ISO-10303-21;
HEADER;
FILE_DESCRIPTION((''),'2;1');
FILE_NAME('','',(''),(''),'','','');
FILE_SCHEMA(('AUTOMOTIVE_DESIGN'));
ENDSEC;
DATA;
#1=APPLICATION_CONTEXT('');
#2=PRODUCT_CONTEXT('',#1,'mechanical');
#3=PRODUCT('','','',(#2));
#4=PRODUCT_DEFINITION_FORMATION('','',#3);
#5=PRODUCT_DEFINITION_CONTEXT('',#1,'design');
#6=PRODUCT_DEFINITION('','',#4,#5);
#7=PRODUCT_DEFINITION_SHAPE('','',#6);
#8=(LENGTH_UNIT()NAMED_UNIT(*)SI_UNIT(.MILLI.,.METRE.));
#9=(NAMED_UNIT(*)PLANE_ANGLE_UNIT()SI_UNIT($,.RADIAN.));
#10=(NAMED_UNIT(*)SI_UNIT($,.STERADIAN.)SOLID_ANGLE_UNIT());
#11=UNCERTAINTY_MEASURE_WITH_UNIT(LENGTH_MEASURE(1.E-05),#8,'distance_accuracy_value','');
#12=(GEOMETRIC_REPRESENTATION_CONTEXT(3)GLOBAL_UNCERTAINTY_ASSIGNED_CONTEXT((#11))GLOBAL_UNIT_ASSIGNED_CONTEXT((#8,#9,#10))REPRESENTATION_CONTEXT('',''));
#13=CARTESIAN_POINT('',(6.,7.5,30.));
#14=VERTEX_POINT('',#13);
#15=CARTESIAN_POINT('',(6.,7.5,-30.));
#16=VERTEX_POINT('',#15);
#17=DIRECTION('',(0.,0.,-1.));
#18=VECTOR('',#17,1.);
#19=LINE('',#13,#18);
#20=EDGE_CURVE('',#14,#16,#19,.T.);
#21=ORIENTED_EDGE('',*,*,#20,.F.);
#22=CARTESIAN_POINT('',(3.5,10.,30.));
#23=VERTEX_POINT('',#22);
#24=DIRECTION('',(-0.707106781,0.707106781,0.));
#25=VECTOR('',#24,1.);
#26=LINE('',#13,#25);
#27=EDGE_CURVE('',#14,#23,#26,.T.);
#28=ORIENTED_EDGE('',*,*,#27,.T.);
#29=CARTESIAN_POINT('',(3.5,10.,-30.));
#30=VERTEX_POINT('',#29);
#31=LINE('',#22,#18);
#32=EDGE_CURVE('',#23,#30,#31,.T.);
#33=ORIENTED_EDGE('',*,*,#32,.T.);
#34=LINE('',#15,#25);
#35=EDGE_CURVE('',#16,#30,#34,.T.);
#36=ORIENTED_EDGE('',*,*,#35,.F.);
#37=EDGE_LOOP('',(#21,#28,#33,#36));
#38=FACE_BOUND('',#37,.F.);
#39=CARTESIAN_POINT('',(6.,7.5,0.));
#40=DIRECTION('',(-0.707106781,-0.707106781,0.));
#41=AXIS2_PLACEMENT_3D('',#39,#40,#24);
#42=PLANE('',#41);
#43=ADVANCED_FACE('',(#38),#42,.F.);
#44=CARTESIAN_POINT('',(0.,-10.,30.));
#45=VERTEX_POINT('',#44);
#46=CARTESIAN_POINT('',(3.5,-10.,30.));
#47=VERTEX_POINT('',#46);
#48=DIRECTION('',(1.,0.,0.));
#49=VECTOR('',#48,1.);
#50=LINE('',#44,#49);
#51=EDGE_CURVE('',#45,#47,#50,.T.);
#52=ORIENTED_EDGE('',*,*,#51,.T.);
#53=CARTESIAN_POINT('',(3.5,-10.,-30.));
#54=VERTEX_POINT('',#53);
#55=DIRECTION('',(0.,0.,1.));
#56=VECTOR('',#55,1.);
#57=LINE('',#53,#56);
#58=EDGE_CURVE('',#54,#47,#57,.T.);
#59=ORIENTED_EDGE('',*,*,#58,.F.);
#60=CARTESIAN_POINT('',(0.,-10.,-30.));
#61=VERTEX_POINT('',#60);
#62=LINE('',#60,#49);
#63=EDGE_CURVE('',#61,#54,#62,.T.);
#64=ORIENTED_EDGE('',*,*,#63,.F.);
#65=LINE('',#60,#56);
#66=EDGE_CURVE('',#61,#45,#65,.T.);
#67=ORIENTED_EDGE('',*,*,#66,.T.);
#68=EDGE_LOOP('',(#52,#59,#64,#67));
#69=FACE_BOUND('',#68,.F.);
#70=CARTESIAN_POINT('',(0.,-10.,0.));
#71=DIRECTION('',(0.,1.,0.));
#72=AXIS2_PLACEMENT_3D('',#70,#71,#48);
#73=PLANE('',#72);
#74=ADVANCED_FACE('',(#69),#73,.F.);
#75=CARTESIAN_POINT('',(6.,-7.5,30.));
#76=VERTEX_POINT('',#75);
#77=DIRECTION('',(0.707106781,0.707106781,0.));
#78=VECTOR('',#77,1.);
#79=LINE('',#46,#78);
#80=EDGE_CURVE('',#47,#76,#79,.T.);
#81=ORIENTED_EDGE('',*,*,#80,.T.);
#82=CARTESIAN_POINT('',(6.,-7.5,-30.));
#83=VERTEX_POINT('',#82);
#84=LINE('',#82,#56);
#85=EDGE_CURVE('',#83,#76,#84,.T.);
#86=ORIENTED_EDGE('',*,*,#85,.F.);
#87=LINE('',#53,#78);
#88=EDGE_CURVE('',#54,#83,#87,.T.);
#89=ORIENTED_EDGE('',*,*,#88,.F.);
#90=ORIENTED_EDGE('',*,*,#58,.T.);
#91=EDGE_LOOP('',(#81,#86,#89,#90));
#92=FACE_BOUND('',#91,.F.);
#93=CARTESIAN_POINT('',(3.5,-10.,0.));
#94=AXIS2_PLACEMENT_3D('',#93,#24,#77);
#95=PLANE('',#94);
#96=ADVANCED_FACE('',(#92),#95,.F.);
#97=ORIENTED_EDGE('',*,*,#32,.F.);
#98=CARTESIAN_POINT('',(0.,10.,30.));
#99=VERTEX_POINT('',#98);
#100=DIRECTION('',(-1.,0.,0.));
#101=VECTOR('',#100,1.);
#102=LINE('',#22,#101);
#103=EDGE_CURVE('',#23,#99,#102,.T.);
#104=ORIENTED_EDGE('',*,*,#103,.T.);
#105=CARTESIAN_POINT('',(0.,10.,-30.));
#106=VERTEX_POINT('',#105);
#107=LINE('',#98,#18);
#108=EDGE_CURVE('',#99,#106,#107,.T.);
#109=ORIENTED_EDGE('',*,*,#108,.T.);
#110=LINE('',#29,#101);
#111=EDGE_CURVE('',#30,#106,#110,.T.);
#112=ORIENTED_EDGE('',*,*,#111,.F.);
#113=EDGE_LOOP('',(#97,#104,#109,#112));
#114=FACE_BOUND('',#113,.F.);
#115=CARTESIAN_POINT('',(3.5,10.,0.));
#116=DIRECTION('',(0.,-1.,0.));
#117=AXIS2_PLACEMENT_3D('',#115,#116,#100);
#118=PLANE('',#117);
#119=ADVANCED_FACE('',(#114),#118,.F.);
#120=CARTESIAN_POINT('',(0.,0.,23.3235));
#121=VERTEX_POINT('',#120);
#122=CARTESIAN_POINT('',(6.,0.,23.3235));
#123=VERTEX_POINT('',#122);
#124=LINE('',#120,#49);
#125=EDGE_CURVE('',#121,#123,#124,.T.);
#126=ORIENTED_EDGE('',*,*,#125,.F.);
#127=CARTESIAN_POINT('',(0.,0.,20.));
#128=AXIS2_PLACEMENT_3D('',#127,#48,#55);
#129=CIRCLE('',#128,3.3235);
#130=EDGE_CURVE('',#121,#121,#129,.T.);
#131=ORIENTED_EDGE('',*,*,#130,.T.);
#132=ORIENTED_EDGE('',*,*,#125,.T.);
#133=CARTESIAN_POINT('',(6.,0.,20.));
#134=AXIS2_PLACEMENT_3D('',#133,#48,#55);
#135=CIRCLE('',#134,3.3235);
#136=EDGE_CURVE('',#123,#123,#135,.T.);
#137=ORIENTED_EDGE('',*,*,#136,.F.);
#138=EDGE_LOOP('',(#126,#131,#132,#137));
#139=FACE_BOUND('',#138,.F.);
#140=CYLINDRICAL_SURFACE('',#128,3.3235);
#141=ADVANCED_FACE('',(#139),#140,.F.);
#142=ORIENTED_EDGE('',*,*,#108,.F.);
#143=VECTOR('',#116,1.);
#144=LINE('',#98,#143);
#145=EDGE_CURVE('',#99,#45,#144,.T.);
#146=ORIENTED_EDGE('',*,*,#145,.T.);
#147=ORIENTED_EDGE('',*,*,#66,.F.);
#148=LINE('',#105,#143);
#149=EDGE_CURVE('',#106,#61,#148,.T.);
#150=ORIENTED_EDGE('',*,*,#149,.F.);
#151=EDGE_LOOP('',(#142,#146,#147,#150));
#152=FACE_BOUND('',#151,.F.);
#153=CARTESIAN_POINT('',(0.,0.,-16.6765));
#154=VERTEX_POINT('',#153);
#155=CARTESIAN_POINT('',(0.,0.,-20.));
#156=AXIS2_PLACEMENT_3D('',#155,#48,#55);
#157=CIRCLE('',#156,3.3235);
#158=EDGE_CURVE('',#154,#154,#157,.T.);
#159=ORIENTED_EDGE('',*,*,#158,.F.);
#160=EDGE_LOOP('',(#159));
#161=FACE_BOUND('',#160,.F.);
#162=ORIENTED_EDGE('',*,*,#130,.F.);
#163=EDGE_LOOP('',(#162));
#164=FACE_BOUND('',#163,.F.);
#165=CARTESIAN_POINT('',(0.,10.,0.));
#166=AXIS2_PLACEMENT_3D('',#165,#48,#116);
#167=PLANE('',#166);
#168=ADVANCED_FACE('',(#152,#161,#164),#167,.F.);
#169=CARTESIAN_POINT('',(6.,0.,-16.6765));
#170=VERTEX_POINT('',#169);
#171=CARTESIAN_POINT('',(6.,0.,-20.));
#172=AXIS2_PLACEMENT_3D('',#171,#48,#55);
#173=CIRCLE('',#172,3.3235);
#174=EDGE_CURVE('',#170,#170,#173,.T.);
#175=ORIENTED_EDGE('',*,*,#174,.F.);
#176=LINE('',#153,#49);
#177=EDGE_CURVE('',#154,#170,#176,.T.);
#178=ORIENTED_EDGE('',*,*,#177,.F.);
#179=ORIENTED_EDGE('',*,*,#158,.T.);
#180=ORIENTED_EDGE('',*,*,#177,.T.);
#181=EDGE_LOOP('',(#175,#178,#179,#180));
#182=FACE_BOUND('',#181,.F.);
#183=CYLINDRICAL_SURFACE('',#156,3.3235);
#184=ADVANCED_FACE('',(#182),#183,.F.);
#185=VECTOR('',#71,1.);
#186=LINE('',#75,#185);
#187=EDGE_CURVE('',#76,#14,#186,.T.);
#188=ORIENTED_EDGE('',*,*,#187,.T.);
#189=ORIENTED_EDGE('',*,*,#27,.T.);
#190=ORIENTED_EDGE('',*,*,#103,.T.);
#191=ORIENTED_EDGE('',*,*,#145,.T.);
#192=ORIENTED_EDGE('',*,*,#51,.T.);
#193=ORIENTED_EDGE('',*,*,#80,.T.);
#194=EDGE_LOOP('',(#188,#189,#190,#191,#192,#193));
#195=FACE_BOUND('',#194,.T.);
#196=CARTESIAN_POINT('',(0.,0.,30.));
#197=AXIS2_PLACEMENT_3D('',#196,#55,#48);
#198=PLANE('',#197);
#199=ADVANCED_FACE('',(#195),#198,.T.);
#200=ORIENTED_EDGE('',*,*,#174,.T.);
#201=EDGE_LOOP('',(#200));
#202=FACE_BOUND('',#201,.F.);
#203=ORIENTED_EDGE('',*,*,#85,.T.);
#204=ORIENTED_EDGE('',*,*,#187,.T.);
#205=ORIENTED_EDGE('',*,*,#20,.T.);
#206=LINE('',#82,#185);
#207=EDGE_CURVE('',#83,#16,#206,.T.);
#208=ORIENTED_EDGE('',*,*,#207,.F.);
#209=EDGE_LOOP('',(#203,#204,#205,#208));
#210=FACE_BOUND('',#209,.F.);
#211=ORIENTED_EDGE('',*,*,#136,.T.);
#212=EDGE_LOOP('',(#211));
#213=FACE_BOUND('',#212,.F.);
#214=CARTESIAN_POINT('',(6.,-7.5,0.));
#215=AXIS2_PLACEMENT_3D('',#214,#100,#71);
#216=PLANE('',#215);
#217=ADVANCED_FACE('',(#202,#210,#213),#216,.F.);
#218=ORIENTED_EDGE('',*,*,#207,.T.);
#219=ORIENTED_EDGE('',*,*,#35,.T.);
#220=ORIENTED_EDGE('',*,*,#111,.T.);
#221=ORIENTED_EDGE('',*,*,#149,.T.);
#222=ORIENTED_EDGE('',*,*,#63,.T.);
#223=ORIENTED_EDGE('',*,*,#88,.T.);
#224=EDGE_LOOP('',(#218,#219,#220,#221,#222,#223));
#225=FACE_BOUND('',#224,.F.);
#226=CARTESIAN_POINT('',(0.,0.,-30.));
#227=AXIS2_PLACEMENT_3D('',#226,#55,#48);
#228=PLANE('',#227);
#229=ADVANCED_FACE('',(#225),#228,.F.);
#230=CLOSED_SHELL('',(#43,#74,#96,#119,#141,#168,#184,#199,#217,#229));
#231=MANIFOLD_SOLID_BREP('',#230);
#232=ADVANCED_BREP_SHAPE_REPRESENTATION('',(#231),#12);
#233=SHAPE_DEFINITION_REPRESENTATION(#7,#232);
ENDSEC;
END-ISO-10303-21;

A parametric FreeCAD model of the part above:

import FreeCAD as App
import Part
import Sketcher

V = App.Vector


def add_polygon(sketch, points):
    """Adds a closed chain of lines whose ends are joined by coincident constraints."""
    first, n = sketch.GeometryCount, len(points)
    for a, b in zip(points, points[1:] + points[:1]):
        sketch.addGeometry(Part.LineSegment(App.Vector(*a, 0), App.Vector(*b, 0)), False)
    for i in range(n):
        sketch.addConstraint(Sketcher.Constraint("Coincident", first + i, 2, first + (i + 1) % n, 1))

doc = App.newDocument("Part")
body = doc.addObject("PartDesign::Body", "Body")

sketch1 = doc.addObject("Sketcher::SketchObject", "Sketch")
body.addObject(sketch1)
sketch1.AttachmentSupport = (doc.XY_Plane, [""])
sketch1.MapMode = "FlatFace"
add_polygon(sketch1, [(0, 10), (0, -10), (3.5, -10), (6, -7.5), (6, 7.5), (3.5, 10)])
sketch1.addConstraint([
    Sketcher.Constraint("Vertical", 0),
    Sketcher.Constraint("Horizontal", 1),
    Sketcher.Constraint("Vertical", 3),
    Sketcher.Constraint("Horizontal", 5),
    Sketcher.Constraint("Symmetric", 0, 2, 5, 2, -1, 1),
    Sketcher.Constraint("Perpendicular", 2, 4),
    Sketcher.Constraint("Vertical", 1, 2, 4, 2),
    Sketcher.Constraint("Equal", 2, 4),
    Sketcher.Constraint("DistanceY", 0, 2, 0, 1, 20.0),
    Sketcher.Constraint("DistanceY", 3, 1, 3, 2, 15.0),
    Sketcher.Constraint("DistanceX", -1, 1, 2, 2, 6.0),
])
pad1 = doc.addObject("PartDesign::Pad", "Pad")
body.addObject(pad1)
pad1.Profile = sketch1
pad1.Length = 60
pad1.Midplane = True

sketch2 = doc.addObject("Sketcher::SketchObject", "Sketch001")
body.addObject(sketch2)
sketch2.AttachmentSupport = (doc.YZ_Plane, [""])
sketch2.MapMode = "FlatFace"
sketch2.addGeometry([
    Part.Circle(V(0, -20, 0), V(0, 0, 1), 3.3),
    Part.Circle(V(0, 20, 0), V(0, 0, 1), 3.3),
], False)
sketch2.addConstraint([
    Sketcher.Constraint("Equal", 0, 1),
    Sketcher.Constraint("Symmetric", 0, 3, 1, 3, -1, 1),
    Sketcher.Constraint("PointOnObject", 0, 3, -2),
    Sketcher.Constraint("Diameter", 0, 6.647),
    Sketcher.Constraint("DistanceY", 0, 3, -1, 1, 20.0),
])
doc.recompute()
hole = doc.addObject("PartDesign::Hole", "Hole")
body.addObject(hole)
hole.Profile = sketch2
hole.ThreadType = "None"
hole.Diameter = 6.647
hole.DepthType = "ThroughAll"
hole.Reversed = True

doc.recompute()
